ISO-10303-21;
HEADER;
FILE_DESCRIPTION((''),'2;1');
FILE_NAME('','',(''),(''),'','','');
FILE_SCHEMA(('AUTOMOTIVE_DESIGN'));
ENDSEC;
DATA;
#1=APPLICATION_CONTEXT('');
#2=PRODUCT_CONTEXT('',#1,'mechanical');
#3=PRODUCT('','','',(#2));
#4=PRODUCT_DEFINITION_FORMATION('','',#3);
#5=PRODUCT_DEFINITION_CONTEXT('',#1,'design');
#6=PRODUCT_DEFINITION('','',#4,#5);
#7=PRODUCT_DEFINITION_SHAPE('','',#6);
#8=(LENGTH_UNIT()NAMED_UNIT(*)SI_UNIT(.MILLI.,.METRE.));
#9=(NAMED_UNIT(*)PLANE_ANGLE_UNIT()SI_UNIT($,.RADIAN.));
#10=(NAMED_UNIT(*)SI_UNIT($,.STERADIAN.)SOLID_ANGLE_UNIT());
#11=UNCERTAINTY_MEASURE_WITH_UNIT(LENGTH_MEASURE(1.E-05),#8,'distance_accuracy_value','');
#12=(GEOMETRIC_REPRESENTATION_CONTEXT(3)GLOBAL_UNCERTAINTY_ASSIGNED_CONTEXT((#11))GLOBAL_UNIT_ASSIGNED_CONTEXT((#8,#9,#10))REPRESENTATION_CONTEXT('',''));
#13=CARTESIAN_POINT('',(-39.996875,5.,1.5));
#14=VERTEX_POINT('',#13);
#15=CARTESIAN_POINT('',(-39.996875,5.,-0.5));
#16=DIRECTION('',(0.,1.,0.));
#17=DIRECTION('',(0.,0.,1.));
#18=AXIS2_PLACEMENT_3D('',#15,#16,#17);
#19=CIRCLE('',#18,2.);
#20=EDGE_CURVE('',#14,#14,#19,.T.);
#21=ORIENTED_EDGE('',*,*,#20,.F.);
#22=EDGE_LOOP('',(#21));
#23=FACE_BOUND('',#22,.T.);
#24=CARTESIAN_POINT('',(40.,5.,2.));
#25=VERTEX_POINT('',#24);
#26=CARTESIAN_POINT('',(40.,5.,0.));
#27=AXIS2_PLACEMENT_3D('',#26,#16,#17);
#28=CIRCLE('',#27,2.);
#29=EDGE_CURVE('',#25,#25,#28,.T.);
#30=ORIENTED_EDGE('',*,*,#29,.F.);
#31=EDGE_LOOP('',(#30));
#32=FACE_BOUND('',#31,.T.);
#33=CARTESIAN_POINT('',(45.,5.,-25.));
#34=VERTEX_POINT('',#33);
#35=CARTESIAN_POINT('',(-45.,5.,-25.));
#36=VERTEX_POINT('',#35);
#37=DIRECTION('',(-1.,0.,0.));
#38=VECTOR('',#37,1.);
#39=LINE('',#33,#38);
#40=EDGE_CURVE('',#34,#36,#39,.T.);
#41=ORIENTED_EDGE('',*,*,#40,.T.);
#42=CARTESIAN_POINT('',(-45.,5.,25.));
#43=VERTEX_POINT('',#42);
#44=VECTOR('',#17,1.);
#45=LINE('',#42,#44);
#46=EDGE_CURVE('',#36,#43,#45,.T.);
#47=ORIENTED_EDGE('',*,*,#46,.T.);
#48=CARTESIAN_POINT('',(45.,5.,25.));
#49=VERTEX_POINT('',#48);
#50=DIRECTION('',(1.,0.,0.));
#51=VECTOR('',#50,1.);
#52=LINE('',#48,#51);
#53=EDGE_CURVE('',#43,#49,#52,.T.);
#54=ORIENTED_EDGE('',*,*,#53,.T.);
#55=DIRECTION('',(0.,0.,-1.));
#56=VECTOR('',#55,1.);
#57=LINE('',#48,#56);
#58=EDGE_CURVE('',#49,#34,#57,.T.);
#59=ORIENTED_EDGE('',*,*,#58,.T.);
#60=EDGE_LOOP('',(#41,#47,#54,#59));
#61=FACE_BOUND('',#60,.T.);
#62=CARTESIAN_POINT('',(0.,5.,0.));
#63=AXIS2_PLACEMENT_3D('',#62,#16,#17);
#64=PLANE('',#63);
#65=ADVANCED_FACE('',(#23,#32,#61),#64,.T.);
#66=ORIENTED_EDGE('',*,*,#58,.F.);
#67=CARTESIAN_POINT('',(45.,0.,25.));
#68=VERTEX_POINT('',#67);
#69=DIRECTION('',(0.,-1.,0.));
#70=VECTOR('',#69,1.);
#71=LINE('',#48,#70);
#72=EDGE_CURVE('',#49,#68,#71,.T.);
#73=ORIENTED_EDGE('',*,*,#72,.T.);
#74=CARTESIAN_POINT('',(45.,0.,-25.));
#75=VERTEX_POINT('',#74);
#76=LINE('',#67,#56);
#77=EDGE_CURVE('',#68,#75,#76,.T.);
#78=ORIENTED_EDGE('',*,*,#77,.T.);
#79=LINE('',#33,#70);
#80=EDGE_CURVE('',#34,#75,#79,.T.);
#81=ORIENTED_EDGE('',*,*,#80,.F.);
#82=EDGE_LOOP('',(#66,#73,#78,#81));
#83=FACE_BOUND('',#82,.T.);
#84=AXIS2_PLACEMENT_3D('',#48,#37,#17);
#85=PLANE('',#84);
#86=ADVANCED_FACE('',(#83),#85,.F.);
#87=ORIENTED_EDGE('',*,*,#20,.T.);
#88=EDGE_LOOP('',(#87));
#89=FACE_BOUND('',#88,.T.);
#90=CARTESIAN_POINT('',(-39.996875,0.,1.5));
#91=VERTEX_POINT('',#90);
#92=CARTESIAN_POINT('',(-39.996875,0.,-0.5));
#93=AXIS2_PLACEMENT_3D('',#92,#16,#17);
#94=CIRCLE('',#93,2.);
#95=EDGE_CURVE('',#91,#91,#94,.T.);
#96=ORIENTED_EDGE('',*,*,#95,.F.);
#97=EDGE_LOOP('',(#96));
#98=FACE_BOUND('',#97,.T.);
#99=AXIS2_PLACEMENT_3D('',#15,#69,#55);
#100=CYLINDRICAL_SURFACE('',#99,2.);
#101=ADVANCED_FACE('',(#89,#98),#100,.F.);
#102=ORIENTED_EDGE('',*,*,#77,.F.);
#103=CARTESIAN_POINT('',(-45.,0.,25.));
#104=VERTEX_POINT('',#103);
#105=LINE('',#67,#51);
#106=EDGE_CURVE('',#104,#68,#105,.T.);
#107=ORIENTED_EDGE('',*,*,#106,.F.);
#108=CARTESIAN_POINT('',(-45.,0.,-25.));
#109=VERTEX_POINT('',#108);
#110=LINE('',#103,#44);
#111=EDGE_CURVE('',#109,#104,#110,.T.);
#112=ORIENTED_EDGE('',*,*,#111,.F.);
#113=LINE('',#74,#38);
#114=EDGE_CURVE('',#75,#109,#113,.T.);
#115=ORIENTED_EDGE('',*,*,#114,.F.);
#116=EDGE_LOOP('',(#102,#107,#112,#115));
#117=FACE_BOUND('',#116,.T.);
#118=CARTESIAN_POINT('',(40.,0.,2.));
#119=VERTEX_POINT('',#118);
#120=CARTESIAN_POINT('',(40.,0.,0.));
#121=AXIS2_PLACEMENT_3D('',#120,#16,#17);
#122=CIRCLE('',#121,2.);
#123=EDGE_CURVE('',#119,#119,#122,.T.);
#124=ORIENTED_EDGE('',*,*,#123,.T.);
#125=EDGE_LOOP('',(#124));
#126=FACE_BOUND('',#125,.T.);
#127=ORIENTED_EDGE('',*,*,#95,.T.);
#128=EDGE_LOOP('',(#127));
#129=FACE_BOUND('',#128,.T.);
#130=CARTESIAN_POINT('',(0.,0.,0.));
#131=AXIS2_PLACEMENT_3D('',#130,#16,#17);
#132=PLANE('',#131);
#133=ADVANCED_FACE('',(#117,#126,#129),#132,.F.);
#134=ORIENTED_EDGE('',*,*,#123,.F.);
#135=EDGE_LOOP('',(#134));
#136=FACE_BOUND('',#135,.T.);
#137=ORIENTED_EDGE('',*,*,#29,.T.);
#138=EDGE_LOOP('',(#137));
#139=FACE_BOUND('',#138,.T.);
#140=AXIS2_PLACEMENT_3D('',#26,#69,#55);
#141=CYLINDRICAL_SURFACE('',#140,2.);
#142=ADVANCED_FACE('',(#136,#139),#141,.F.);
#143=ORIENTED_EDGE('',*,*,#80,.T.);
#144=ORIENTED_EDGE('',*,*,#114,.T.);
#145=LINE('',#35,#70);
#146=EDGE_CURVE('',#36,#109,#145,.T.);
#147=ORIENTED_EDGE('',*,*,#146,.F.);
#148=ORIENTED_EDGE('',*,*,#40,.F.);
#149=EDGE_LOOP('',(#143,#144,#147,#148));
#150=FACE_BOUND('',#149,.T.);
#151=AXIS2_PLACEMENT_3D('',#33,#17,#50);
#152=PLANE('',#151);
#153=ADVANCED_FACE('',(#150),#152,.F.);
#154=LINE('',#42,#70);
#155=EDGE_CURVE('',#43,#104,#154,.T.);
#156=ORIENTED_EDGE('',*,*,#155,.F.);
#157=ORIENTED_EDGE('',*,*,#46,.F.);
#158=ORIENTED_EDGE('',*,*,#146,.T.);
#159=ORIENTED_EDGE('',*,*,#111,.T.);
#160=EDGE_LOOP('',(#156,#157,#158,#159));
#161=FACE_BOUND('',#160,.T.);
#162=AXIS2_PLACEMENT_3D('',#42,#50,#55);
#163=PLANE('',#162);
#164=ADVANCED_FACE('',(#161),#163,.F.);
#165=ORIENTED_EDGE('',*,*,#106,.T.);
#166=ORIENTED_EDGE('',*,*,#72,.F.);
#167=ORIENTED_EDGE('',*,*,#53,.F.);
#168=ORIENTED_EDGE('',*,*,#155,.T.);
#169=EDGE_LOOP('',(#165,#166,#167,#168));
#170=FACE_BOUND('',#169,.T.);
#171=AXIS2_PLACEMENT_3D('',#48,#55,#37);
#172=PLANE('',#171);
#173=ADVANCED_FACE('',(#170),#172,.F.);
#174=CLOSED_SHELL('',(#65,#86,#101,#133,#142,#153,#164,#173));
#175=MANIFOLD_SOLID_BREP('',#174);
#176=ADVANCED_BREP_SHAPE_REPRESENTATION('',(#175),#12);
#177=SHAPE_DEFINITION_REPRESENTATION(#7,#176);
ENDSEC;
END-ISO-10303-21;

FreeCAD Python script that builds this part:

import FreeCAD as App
import Part
import Sketcher
Q = App.Units.Quantity

doc = App.newDocument("Part")
params = doc.addObject("Spreadsheet::Sheet", "Params")
for row, (alias, value) in enumerate([
    ("sketch1_diameter", "4 mm"),
    ("sketch1_width", "90 mm"),
    ("sketch1_height", "50 mm"),
    ("pad1_length", "5 mm"),
], start=1):
    params.set(f"A{row}", alias)
    params.set(f"B{row}", "=" + value)
    params.setAlias(f"B{row}", alias)

body = doc.addObject("PartDesign::Body", "Body")

sketch1 = body.newObject("Sketcher::SketchObject", "Sketch")
sketch1.AttachmentSupport = (doc.getObject("XZ_Plane"), [""])
sketch1.MapMode = "FlatFace"
sketch1.addGeometry(Part.LineSegment(App.Vector(-45, -25, 0), App.Vector(-45, 25, 0)), False)
sketch1.addGeometry(Part.LineSegment(App.Vector(-45, 25, 0), App.Vector(45, 25, 0)), False)
sketch1.addGeometry(Part.LineSegment(App.Vector(45, 25, 0), App.Vector(45, -25, 0)), False)
sketch1.addGeometry(Part.LineSegment(App.Vector(45, -25, 0), App.Vector(-45, -25, 0)), False)
sketch1.addGeometry(Part.Circle(App.Vector(40, 0, 0), App.Vector(0, 0, 1), 2), False)
sketch1.addGeometry(Part.Circle(App.Vector(-39.996875, -0.5, 0), App.Vector(0, 0, 1), 2), False)
sketch1.addConstraint(Sketcher.Constraint("Coincident", 0, 2, 1, 1))
sketch1.addConstraint(Sketcher.Constraint("Coincident", 1, 2, 2, 1))
sketch1.addConstraint(Sketcher.Constraint("Coincident", 2, 2, 3, 1))
sketch1.addConstraint(Sketcher.Constraint("Coincident", 3, 2, 0, 1))
sketch1.addConstraint(Sketcher.Constraint("Vertical", 0))
sketch1.addConstraint(Sketcher.Constraint("Horizontal", 1))
sketch1.addConstraint(Sketcher.Constraint("Vertical", 2))
sketch1.addConstraint(Sketcher.Constraint("Horizontal", 3))
sketch1.addConstraint(Sketcher.Constraint("Equal", 4, 5))
sketch1.addConstraint(Sketcher.Constraint("Symmetric", 0, 2, 2, 2, -1, 1))
sketch1.addConstraint(Sketcher.Constraint("PointOnObject", 4, 3, -1))
sketch1.addConstraint(Sketcher.Constraint("Diameter", 4, Q("4 mm")))
sketch1.addConstraint(Sketcher.Constraint("DistanceX", 1, 1, 1, 2, Q("90 mm")))
sketch1.addConstraint(Sketcher.Constraint("DistanceY", 0, 1, 0, 2, Q("50 mm")))
sketch1.addConstraint(Sketcher.Constraint("DistanceX", -1, 1, 4, 3, Q("40 mm")))
sketch1.addConstraint(Sketcher.Constraint("DistanceY", 5, 3, -1, 1, Q("0.5 mm")))
sketch1.addConstraint(Sketcher.Constraint("DistanceX", 5, 3, -1, 1, Q("39.996875 mm")))
sketch1.setExpression("Constraints[11]", "Params.sketch1_diameter")
sketch1.setExpression("Constraints[12]", "Params.sketch1_width")
sketch1.setExpression("Constraints[13]", "Params.sketch1_height")
pad1 = body.newObject("PartDesign::Pad", "Pad")
pad1.Profile = sketch1
pad1.setExpression("Length", "Params.pad1_length")
pad1.Reversed = True

doc.recompute()
